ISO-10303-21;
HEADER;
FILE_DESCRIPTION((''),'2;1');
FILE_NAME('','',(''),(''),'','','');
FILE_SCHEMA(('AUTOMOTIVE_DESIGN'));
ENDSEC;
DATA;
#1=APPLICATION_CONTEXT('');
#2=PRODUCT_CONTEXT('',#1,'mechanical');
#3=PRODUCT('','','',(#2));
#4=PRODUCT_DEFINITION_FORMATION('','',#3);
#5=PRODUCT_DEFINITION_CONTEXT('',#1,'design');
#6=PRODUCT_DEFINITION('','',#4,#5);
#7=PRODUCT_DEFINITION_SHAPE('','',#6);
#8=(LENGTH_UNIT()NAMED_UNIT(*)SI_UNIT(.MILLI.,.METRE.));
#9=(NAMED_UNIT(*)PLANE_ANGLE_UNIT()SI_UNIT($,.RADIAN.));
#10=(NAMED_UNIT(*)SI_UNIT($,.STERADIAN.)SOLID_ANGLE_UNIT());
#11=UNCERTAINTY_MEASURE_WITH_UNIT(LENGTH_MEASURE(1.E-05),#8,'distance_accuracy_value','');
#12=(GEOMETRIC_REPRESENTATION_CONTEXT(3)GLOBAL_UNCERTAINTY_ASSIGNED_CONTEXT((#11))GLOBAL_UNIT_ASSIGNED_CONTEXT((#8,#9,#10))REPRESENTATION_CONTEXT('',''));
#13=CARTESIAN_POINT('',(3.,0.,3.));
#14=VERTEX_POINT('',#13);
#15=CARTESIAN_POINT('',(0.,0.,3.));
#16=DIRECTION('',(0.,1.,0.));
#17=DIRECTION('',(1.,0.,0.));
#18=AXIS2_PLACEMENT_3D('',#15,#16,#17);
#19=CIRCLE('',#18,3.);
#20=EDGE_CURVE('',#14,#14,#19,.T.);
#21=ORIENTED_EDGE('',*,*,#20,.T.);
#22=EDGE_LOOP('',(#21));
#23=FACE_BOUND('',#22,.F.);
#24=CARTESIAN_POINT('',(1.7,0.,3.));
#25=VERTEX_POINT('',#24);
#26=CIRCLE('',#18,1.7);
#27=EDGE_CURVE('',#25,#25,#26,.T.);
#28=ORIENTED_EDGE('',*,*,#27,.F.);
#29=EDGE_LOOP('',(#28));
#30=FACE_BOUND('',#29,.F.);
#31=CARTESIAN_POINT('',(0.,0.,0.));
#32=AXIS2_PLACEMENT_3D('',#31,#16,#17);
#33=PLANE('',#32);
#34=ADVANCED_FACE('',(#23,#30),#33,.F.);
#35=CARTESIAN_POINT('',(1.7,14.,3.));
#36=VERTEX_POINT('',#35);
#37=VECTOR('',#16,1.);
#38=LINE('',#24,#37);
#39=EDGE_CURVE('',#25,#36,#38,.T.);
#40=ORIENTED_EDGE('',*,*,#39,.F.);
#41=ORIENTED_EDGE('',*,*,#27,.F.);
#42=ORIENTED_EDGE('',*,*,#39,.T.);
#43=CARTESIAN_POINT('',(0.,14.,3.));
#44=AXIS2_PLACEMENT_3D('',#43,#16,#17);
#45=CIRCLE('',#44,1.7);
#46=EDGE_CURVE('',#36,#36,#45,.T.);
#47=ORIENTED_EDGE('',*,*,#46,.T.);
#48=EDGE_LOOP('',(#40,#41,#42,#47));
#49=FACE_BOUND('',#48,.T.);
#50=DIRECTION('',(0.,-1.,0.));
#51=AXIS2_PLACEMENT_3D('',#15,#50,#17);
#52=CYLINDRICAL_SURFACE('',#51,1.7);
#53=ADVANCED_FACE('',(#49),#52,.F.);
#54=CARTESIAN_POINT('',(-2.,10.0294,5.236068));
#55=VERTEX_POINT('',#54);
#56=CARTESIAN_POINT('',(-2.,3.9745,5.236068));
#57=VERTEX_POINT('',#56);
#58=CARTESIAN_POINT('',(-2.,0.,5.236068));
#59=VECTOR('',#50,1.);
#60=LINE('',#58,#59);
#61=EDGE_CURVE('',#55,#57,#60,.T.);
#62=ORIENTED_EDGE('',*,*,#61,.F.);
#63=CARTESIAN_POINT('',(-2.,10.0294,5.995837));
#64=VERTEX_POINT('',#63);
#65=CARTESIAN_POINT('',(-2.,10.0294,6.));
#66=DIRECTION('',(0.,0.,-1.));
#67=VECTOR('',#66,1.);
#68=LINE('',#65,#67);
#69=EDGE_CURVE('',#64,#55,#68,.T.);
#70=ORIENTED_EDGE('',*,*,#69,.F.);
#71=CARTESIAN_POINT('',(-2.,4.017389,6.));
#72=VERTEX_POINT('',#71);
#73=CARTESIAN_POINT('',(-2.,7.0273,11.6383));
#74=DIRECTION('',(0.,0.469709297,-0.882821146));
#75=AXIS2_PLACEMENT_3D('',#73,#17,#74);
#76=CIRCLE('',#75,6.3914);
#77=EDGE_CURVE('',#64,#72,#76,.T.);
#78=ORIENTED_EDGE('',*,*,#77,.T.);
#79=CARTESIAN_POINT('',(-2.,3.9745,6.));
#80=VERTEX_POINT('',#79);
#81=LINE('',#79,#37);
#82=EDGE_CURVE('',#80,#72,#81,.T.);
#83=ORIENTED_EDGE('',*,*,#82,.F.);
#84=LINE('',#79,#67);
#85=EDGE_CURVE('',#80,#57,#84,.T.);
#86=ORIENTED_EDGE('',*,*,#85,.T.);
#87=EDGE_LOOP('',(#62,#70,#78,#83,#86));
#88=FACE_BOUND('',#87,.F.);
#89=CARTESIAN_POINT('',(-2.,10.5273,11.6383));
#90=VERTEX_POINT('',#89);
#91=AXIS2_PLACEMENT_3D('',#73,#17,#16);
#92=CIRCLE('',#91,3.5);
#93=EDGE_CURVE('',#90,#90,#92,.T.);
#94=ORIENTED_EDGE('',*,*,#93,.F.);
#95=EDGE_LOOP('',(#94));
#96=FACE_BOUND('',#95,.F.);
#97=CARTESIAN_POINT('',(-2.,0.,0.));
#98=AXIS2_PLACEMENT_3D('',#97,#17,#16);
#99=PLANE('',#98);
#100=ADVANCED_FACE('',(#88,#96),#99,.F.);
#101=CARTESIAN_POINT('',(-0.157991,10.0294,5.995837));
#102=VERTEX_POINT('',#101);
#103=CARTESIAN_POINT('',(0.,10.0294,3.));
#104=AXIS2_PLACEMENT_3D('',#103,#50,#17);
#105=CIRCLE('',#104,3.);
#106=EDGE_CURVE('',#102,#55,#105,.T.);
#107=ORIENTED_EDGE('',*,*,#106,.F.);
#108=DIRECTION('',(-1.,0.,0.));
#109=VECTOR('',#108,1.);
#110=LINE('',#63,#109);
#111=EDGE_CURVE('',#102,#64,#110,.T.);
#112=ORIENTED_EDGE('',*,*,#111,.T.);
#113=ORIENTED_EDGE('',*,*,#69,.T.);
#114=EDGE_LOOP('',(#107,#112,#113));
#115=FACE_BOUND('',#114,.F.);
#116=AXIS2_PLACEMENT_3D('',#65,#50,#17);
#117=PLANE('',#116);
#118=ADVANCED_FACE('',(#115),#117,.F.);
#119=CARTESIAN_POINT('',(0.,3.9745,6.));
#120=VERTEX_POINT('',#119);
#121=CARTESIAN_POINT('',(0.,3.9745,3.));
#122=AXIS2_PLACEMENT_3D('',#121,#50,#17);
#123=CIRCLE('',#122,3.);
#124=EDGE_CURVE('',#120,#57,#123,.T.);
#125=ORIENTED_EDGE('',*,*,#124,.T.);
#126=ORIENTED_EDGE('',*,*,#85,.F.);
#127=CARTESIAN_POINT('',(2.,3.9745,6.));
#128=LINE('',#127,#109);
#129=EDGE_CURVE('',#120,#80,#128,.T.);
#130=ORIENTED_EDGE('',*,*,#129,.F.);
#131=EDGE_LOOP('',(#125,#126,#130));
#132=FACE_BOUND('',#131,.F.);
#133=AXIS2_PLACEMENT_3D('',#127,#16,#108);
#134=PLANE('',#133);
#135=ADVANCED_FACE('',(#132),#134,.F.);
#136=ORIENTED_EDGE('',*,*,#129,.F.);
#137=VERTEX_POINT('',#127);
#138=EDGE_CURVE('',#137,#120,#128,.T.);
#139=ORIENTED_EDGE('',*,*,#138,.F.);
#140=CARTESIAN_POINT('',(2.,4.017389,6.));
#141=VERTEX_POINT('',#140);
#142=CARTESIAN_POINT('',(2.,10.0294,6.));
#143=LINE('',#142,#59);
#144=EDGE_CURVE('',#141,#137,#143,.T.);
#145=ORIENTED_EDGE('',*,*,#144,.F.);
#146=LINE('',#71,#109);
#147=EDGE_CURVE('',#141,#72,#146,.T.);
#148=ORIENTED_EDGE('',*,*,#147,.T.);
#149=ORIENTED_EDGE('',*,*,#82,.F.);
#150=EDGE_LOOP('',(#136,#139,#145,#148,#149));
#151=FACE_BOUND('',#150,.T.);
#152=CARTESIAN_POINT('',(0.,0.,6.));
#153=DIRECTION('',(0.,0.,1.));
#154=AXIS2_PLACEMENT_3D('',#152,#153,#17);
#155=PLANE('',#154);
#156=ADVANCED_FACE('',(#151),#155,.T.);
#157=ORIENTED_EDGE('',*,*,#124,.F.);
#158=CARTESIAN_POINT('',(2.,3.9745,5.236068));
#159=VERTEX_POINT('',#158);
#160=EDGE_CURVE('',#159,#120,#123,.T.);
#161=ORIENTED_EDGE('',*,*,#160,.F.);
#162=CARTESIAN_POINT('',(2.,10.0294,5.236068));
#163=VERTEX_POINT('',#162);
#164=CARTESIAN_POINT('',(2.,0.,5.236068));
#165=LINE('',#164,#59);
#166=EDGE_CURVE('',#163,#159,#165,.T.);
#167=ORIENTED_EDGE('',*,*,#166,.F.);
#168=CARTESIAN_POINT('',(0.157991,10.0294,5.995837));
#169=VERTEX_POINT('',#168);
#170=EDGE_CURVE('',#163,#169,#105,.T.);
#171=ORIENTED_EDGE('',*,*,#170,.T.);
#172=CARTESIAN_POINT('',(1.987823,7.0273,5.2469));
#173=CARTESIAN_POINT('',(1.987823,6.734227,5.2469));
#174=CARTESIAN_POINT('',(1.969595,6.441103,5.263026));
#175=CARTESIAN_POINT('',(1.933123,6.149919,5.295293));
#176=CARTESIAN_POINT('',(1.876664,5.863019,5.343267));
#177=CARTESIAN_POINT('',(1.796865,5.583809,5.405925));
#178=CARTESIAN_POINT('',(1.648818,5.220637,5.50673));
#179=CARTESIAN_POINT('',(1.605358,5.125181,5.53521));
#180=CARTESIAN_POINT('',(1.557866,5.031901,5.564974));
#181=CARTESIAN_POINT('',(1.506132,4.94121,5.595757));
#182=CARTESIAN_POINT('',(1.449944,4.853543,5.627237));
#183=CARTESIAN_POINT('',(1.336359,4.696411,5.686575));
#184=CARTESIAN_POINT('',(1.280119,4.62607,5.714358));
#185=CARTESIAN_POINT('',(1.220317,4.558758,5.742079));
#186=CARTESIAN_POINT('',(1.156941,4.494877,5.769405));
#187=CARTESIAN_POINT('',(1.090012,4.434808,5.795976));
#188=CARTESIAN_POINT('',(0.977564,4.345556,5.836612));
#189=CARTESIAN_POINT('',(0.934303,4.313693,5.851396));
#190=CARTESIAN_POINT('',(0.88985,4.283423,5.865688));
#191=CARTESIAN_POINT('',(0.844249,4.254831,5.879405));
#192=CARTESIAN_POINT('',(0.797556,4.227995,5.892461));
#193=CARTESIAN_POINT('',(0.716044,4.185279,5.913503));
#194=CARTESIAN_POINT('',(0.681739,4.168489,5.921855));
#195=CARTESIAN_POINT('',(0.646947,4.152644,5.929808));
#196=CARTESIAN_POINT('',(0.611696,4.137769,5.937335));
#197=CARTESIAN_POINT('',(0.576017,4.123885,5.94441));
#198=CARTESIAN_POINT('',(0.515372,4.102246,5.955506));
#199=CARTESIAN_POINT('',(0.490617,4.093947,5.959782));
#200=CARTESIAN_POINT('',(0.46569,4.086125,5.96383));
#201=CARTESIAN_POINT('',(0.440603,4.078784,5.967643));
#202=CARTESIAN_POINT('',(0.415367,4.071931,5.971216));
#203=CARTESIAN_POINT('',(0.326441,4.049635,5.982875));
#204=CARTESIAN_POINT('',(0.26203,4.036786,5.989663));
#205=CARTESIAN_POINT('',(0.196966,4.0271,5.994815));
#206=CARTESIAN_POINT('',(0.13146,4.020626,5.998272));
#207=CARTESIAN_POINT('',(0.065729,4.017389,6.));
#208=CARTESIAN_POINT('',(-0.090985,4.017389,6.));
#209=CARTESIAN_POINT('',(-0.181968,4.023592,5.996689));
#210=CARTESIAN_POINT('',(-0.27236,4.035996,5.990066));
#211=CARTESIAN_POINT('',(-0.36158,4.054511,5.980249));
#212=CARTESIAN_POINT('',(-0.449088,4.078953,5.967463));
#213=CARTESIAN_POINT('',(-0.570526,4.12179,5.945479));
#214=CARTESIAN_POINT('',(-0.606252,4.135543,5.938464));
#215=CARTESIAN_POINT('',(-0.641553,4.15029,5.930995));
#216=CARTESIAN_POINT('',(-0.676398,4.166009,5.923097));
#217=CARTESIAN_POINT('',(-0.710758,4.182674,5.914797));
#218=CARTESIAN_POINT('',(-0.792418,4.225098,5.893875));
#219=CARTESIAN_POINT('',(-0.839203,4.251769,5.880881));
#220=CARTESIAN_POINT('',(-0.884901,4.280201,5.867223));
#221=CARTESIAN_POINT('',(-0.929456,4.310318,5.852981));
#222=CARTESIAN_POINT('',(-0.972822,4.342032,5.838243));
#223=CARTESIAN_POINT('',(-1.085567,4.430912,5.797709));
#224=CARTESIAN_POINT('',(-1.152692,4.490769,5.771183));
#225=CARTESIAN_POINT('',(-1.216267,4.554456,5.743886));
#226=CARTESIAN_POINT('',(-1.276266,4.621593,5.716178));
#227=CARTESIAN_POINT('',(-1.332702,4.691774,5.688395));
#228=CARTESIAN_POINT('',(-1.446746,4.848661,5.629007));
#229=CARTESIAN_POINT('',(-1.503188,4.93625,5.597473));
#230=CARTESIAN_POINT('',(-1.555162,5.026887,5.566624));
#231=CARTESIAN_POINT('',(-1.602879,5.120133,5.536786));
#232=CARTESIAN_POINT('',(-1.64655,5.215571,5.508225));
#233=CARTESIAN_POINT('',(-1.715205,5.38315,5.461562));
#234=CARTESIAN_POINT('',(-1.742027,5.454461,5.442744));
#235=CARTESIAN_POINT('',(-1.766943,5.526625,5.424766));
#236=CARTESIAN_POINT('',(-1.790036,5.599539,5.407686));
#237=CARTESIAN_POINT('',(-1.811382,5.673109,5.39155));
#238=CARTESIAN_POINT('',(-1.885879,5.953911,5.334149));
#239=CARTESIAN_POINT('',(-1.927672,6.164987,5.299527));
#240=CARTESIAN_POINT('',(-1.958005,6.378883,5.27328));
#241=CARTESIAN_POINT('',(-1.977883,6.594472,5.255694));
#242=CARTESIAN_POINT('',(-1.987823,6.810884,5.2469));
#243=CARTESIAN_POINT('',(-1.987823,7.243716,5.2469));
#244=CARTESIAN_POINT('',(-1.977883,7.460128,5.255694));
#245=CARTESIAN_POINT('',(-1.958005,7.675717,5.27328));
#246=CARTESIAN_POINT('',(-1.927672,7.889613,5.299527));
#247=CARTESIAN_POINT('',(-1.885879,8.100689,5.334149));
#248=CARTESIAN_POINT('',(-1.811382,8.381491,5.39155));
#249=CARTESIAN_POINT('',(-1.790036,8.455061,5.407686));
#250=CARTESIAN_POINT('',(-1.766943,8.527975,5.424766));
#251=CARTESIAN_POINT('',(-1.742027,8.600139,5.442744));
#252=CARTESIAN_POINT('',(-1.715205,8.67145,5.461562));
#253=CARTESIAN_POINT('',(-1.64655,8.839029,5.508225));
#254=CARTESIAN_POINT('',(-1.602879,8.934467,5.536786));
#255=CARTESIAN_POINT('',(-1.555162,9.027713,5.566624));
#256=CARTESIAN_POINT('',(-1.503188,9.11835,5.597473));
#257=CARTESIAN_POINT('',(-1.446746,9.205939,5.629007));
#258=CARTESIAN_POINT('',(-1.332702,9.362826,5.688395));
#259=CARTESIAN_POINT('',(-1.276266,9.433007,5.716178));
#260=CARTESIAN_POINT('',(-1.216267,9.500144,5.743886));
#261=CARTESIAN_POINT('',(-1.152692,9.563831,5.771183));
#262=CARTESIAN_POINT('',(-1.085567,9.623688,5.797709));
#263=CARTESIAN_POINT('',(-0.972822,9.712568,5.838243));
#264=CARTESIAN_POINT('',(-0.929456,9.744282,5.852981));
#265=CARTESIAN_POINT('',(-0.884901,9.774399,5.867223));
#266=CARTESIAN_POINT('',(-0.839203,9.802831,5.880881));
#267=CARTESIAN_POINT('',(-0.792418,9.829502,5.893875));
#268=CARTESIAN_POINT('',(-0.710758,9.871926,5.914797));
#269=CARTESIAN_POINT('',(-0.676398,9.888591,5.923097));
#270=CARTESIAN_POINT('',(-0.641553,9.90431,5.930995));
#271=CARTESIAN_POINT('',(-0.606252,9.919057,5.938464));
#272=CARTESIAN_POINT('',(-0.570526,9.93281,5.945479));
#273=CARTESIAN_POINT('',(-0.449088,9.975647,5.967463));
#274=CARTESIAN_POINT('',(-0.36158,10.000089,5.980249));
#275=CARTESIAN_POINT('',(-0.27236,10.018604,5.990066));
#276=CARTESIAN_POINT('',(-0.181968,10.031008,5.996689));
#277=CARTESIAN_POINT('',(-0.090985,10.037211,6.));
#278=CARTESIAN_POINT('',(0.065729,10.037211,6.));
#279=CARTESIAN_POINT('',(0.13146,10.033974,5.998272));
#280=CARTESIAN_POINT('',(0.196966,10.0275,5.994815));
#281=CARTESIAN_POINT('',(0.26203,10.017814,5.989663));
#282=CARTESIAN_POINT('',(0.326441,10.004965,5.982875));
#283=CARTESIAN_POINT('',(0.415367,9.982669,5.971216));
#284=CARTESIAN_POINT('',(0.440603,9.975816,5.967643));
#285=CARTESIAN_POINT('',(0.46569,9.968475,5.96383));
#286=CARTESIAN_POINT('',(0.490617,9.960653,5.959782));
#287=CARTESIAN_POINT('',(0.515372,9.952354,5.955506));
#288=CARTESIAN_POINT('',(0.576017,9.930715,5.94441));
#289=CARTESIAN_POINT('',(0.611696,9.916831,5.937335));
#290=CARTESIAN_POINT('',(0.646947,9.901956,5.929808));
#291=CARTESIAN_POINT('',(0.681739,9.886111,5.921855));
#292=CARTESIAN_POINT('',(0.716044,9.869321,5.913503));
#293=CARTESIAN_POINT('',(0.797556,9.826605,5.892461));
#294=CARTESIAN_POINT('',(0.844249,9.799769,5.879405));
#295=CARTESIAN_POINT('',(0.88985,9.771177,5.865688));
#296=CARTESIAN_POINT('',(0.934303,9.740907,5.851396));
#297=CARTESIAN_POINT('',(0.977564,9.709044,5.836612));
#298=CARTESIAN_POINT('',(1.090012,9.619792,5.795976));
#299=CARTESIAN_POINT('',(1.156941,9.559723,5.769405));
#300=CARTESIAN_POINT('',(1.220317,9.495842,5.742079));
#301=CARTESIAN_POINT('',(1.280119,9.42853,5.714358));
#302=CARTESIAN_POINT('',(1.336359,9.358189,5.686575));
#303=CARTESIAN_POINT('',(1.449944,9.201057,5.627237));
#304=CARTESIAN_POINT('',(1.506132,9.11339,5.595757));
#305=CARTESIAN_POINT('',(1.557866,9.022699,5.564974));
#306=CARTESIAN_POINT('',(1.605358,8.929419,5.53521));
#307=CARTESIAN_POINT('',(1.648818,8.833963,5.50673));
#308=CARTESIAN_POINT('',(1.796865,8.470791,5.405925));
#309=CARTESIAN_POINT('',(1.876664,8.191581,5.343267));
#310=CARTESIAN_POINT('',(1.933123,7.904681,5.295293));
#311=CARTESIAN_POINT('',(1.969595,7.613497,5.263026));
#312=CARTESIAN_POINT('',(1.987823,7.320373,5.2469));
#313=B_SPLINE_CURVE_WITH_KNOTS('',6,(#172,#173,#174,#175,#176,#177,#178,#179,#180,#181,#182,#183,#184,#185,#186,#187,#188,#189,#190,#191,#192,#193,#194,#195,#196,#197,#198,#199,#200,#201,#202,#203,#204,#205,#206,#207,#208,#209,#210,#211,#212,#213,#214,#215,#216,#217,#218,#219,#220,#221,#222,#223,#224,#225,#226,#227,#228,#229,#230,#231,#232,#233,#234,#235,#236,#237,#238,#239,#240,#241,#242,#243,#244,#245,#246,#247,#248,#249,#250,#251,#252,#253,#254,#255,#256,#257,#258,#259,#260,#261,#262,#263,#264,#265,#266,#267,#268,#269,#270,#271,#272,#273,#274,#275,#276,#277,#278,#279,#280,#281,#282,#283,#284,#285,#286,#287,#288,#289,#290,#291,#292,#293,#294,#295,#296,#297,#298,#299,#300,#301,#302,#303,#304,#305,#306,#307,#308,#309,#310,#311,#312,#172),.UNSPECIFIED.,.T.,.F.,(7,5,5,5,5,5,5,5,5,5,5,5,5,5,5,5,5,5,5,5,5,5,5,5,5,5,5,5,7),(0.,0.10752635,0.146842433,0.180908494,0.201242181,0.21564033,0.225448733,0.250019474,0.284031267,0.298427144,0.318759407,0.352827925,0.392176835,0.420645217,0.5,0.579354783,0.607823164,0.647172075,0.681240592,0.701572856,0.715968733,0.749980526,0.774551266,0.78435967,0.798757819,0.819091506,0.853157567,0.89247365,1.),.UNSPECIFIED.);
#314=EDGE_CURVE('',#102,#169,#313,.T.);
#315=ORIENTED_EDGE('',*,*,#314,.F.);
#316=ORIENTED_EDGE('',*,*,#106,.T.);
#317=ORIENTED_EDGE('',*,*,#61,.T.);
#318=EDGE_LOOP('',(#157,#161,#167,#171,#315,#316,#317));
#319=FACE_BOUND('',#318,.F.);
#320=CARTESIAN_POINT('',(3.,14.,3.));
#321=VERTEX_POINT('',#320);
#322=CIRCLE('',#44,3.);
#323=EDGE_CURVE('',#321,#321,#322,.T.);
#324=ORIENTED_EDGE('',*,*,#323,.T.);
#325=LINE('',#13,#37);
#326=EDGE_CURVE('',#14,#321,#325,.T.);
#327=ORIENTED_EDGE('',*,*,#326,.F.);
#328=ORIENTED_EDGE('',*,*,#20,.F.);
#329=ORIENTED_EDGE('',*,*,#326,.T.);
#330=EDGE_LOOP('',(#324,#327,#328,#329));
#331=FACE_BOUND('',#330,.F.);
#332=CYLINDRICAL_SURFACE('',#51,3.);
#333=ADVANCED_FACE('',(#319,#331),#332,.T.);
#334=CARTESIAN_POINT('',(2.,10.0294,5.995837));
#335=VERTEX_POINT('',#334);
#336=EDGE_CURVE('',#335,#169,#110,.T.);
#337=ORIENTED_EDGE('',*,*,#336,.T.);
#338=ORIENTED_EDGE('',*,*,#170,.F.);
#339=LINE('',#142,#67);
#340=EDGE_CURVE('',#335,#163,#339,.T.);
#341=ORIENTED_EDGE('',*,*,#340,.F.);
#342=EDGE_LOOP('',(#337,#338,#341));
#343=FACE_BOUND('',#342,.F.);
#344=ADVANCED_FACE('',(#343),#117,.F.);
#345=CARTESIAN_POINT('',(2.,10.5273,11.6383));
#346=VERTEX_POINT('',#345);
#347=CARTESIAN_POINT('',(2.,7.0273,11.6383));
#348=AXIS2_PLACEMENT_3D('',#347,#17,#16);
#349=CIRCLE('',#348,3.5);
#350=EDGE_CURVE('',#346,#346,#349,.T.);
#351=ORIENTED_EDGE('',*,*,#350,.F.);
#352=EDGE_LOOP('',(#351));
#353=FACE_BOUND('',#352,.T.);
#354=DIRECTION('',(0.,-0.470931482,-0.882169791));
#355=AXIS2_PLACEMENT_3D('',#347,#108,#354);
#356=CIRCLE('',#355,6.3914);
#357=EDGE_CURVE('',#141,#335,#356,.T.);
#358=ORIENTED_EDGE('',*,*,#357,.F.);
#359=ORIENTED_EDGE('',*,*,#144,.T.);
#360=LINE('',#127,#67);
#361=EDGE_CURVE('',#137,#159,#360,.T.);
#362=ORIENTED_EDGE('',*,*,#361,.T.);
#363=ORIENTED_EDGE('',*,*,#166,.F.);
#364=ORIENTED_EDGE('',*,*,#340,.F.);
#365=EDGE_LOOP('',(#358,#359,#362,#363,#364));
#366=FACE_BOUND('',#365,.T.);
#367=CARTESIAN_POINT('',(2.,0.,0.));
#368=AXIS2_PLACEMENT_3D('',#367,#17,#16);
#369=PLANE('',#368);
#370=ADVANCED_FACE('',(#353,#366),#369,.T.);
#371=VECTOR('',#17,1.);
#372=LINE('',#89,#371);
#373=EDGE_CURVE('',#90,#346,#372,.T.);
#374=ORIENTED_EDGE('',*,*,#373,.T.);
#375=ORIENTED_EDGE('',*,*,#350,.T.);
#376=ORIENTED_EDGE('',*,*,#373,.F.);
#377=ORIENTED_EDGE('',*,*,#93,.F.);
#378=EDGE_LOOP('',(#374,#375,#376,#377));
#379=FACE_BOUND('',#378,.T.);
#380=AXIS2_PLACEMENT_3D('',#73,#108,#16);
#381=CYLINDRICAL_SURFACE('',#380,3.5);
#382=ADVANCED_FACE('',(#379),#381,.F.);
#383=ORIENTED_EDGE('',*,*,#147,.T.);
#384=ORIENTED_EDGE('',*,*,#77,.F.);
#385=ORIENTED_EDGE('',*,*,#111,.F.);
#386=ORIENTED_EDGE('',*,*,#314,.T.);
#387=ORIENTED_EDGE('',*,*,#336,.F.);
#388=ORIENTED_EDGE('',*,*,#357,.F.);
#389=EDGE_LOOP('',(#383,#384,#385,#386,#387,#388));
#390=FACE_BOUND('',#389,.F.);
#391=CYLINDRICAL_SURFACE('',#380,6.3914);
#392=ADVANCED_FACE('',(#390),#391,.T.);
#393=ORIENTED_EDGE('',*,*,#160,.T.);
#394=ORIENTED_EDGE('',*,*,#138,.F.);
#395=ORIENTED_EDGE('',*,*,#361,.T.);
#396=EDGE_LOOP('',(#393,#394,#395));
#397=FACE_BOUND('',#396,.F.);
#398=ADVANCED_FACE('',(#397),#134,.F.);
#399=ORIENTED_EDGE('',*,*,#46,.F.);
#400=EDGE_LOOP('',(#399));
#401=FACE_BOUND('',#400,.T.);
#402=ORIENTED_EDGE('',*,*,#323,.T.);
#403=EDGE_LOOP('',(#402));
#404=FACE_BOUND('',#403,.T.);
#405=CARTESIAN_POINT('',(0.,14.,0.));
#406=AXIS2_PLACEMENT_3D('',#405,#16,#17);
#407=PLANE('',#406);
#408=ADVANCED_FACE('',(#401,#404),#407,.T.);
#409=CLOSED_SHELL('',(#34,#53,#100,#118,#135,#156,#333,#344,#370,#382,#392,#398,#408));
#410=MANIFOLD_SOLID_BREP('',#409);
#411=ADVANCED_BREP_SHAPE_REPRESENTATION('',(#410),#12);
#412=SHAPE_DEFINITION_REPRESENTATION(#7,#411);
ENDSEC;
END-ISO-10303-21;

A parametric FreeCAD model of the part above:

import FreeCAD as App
import Part
import Sketcher
from FreeCAD import Vector
Q = App.Units.Quantity

doc = App.newDocument("Part")
body = doc.addObject("PartDesign::Body", "Body")

sketch1 = doc.addObject("Sketcher::SketchObject", "Sketch")
body.addObject(sketch1)
sketch1.AttachmentSupport = (doc.XZ_Plane, [""])
sketch1.MapMode = "FlatFace"
sketch1.addGeometry([
    Part.Circle(Vector(0, 3, 0), Vector(0, 0, 1), 3),
    Part.Circle(Vector(0, 3, 0), Vector(0, 0, 1), 1.7),
], False)
sketch1.addConstraint([
    Sketcher.Constraint("Coincident", 1, 3, 0, 3),
    Sketcher.Constraint("PointOnObject", 0, 3, -2),
    Sketcher.Constraint("Diameter", 1, Q("3.4 mm")),
    Sketcher.Constraint("Diameter", 0, Q("6 mm")),
    Sketcher.Constraint("DistanceY", -1, 1, 0, 3, Q("3 mm")),
])
pad1 = doc.addObject("PartDesign::Pad", "Pad")
body.addObject(pad1)
pad1.Profile = sketch1
pad1.Length = 14
pad1.Reversed = True

sketch2 = doc.addObject("Sketcher::SketchObject", "Sketch001")
body.addObject(sketch2)
sketch2.AttachmentSupport = (doc.XY_Plane, [""])
sketch2.MapMode = "FlatFace"
sketch2.AttachmentOffset = App.Placement(Vector(0, 0, 6), App.Rotation())
sketch2.addGeometry([
    Part.LineSegment(Vector(2, 10, 0), Vector(-2, 10, 0)),
    Part.LineSegment(Vector(-2, 10, 0), Vector(-2, 4, 0)),
    Part.LineSegment(Vector(-2, 4, 0), Vector(2, 4, 0)),
    Part.LineSegment(Vector(2, 4, 0), Vector(2, 10, 0)),
], False)
sketch2.addConstraint([
    Sketcher.Constraint("Coincident", 0, 2, 1, 1),
    Sketcher.Constraint("Coincident", 1, 2, 2, 1),
    Sketcher.Constraint("Coincident", 2, 2, 3, 1),
    Sketcher.Constraint("Coincident", 3, 2, 0, 1),
    Sketcher.Constraint("Horizontal", 0),
    Sketcher.Constraint("Vertical", 1),
    Sketcher.Constraint("Horizontal", 2),
    Sketcher.Constraint("Vertical", 3),
    Sketcher.Constraint("DistanceX", 0, 2, 0, 1, Q("4 mm")),
    Sketcher.Constraint("DistanceX", 0, 2, -1, 1, Q("2 mm")),
    Sketcher.Constraint("DistanceY", 1, 2, 1, 1, Q("6.055 mm")),
    Sketcher.Constraint("DistanceY", -1, 1, 0, 2, Q("10.0294 mm")),
])
pad2 = doc.addObject("PartDesign::Pad", "Pad001")
body.addObject(pad2)
pad2.Profile = sketch2
pad2.Length = 1
pad2.Reversed = True

sketch3 = doc.addObject("Sketcher::SketchObject", "Sketch002")
body.addObject(sketch3)
sketch3.AttachmentSupport = (doc.YZ_Plane, [""])
sketch3.MapMode = "FlatFace"
sketch3.AttachmentOffset = App.Placement(Vector(0, 0, -2), App.Rotation())
sketch3.addGeometry([
    Part.Circle(Vector(7, 11.6, 0), Vector(0, 0, 1), 6.4),
    Part.Circle(Vector(7, 11.6, 0), Vector(0, 0, 1), 3.5),
], False)
sketch3.addConstraint([
    Sketcher.Constraint("Coincident", 1, 3, 0, 3),
    Sketcher.Constraint("Diameter", 1, Q("7 mm")),
    Sketcher.Constraint("Diameter", 0, Q("12.7828 mm")),
    Sketcher.Constraint("DistanceX", -1, 1, 0, 3, Q("7.0273 mm")),
    Sketcher.Constraint("DistanceY", -1, 1, 0, 3, Q("11.6383 mm")),
])
pad3 = doc.addObject("PartDesign::Pad", "Pad002")
body.addObject(pad3)
pad3.Profile = sketch3
pad3.Length = 4

doc.recompute()
